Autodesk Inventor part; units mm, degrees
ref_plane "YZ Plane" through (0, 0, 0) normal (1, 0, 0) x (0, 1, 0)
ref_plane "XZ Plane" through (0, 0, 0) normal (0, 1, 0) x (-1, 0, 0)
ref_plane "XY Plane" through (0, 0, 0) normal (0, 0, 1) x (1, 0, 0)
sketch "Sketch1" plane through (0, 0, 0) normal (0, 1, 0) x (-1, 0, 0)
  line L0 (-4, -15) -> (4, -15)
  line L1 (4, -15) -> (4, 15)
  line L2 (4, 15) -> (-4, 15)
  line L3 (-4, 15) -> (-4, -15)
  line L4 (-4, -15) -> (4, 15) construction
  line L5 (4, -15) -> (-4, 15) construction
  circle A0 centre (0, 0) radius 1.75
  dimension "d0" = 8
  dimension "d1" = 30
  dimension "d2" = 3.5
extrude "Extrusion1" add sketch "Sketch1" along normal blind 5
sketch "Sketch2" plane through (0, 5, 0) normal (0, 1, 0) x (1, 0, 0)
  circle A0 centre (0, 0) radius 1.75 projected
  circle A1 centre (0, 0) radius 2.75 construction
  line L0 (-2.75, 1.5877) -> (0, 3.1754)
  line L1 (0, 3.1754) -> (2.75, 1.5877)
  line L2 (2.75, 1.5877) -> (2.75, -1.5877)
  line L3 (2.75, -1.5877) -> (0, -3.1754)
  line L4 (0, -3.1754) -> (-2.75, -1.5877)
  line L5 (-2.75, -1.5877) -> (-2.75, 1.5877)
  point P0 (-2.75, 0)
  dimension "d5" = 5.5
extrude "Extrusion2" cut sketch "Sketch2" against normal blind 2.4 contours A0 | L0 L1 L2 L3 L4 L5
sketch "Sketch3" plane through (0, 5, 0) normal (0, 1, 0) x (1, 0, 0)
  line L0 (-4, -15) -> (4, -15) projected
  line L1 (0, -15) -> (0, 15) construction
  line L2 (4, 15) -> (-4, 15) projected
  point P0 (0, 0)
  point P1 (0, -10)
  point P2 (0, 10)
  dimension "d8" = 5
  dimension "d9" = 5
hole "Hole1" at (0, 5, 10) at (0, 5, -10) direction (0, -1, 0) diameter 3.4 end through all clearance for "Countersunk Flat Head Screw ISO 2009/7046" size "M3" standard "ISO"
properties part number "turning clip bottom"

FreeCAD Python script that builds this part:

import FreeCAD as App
import Part
import Sketcher
from FreeCAD import Vector
Q = App.Units.Quantity

doc = App.newDocument("Part")
body = doc.addObject("PartDesign::Body", "Body")

# Sketch on XZ plane
sketch1 = doc.addObject("Sketcher::SketchObject", "Sketch")
body.addObject(sketch1)
sketch1.AttachmentSupport = (doc.XZ_Plane, [""])
sketch1.MapMode = "FlatFace"
sketch1.addGeometry([
    Part.LineSegment(Vector(4, 15, 0), Vector(4, -15, 0)),  # 0
    Part.LineSegment(Vector(4, -15, 0), Vector(-4, -15, 0)),  # 1
    Part.LineSegment(Vector(-4, -15, 0), Vector(-4, 15, 0)),  # 2
    Part.LineSegment(Vector(-4, 15, 0), Vector(4, 15, 0)),  # 3
    Part.Circle(Vector(0, 0, 0), Vector(0, 0, 1), 1.8),  # 4
], False)
sketch1.addConstraint([
    Sketcher.Constraint("Coincident", 0, 2, 1, 1),
    Sketcher.Constraint("Coincident", 1, 2, 2, 1),
    Sketcher.Constraint("Coincident", 2, 2, 3, 1),
    Sketcher.Constraint("Coincident", 3, 2, 0, 1),
    Sketcher.Constraint("Vertical", 0),
    Sketcher.Constraint("Horizontal", 1),
    Sketcher.Constraint("Vertical", 2),
    Sketcher.Constraint("Horizontal", 3),
    Sketcher.Constraint("Coincident", 4, 3, -1, 1),
    Sketcher.Constraint("Symmetric", 0, 2, 2, 2, -1, 1),
    Sketcher.Constraint("Diameter", 4, 3.5),
    Sketcher.Constraint("DistanceX", 1, 2, 1, 1, 8.0),
    Sketcher.Constraint("DistanceY", 0, 2, 0, 1, 30.0),
])
pad1 = doc.addObject("PartDesign::Pad", "Pad")
body.addObject(pad1)
pad1.Profile = sketch1
pad1.Length = 5
pad1.Reversed = True

# Sketch on XZ plane
sketch2 = doc.addObject("Sketcher::SketchObject", "Sketch001")
body.addObject(sketch2)
sketch2.AttachmentSupport = (doc.XZ_Plane, [""])
sketch2.MapMode = "FlatFace"
sketch2.AttachmentOffset = App.Placement(Vector(0, 0, -5), App.Rotation())
sketch2.addGeometry([
    Part.LineSegment(Vector(0, -3.2, 0), Vector(-2.8, -1.6, 0)),  # 0
    Part.LineSegment(Vector(-2.8, -1.6, 0), Vector(-2.8, 1.6, 0)),  # 1
    Part.LineSegment(Vector(-2.8, 1.6, 0), Vector(0, 3.2, 0)),  # 2
    Part.LineSegment(Vector(0, 3.2, 0), Vector(2.8, 1.6, 0)),  # 3
    Part.LineSegment(Vector(2.8, 1.6, 0), Vector(2.8, -1.6, 0)),  # 4
    Part.LineSegment(Vector(2.8, -1.6, 0), Vector(0, -3.2, 0)),  # 5
], False)
sketch2.addConstraint([
    Sketcher.Constraint("Coincident", 0, 2, 1, 1),
    Sketcher.Constraint("Coincident", 1, 2, 2, 1),
    Sketcher.Constraint("Coincident", 2, 2, 3, 1),
    Sketcher.Constraint("Coincident", 3, 2, 4, 1),
    Sketcher.Constraint("Coincident", 4, 2, 5, 1),
    Sketcher.Constraint("Coincident", 5, 2, 0, 1),
    Sketcher.Constraint("Vertical", 1),
    Sketcher.Constraint("Vertical", 4),
    Sketcher.Constraint("Symmetric", 0, 2, 3, 2, -1, 1),
    Sketcher.Constraint("Symmetric", 2, 2, 5, 2, -1, 1),
    Sketcher.Constraint("PointOnObject", 2, 2, -2),
    Sketcher.Constraint("Parallel", 2, 5),
    Sketcher.Constraint("Horizontal", 1, 2, 3, 2),
    Sketcher.Constraint("DistanceX", 1, 2, 3, 2, 5.5),
    Sketcher.Constraint("Angle", 0, Q("150.0002 deg")),
    Sketcher.Constraint("DistanceY", 1, 1, 1, 2, 3.1754),
])
pocket1 = doc.addObject("PartDesign::Pocket", "Pocket")
body.addObject(pocket1)
pocket1.Profile = sketch2
pocket1.Length = 2.4
pocket1.Reversed = True

# Sketch on XZ plane
sketch3 = doc.addObject("Sketcher::SketchObject", "Sketch002")
body.addObject(sketch3)
sketch3.AttachmentSupport = (doc.XZ_Plane, [""])
sketch3.MapMode = "FlatFace"
sketch3.AttachmentOffset = App.Placement(Vector(0, 0, -5), App.Rotation())
sketch3.addGeometry([
    Part.Circle(Vector(0, 10, 0), Vector(0, 0, 1), 1.7),
    Part.Circle(Vector(0, -10, 0), Vector(0, 0, 1), 1.7),
], False)
sketch3.addConstraint([
    Sketcher.Constraint("Equal", 0, 1),
    Sketcher.Constraint("Symmetric", 0, 3, 1, 3, -1, 1),
    Sketcher.Constraint("PointOnObject", 0, 3, -2),
    Sketcher.Constraint("Diameter", 0, 3.4),
    Sketcher.Constraint("DistanceY", -1, 1, 0, 3, 10.0),
])
doc.recompute()
hole = doc.addObject("PartDesign::Hole", "Hole")
body.addObject(hole)
hole.Profile = sketch3
hole.ThreadType = "None"
hole.Diameter = 3.4
hole.DepthType = "ThroughAll"
hole.Reversed = True

doc.recompute()
